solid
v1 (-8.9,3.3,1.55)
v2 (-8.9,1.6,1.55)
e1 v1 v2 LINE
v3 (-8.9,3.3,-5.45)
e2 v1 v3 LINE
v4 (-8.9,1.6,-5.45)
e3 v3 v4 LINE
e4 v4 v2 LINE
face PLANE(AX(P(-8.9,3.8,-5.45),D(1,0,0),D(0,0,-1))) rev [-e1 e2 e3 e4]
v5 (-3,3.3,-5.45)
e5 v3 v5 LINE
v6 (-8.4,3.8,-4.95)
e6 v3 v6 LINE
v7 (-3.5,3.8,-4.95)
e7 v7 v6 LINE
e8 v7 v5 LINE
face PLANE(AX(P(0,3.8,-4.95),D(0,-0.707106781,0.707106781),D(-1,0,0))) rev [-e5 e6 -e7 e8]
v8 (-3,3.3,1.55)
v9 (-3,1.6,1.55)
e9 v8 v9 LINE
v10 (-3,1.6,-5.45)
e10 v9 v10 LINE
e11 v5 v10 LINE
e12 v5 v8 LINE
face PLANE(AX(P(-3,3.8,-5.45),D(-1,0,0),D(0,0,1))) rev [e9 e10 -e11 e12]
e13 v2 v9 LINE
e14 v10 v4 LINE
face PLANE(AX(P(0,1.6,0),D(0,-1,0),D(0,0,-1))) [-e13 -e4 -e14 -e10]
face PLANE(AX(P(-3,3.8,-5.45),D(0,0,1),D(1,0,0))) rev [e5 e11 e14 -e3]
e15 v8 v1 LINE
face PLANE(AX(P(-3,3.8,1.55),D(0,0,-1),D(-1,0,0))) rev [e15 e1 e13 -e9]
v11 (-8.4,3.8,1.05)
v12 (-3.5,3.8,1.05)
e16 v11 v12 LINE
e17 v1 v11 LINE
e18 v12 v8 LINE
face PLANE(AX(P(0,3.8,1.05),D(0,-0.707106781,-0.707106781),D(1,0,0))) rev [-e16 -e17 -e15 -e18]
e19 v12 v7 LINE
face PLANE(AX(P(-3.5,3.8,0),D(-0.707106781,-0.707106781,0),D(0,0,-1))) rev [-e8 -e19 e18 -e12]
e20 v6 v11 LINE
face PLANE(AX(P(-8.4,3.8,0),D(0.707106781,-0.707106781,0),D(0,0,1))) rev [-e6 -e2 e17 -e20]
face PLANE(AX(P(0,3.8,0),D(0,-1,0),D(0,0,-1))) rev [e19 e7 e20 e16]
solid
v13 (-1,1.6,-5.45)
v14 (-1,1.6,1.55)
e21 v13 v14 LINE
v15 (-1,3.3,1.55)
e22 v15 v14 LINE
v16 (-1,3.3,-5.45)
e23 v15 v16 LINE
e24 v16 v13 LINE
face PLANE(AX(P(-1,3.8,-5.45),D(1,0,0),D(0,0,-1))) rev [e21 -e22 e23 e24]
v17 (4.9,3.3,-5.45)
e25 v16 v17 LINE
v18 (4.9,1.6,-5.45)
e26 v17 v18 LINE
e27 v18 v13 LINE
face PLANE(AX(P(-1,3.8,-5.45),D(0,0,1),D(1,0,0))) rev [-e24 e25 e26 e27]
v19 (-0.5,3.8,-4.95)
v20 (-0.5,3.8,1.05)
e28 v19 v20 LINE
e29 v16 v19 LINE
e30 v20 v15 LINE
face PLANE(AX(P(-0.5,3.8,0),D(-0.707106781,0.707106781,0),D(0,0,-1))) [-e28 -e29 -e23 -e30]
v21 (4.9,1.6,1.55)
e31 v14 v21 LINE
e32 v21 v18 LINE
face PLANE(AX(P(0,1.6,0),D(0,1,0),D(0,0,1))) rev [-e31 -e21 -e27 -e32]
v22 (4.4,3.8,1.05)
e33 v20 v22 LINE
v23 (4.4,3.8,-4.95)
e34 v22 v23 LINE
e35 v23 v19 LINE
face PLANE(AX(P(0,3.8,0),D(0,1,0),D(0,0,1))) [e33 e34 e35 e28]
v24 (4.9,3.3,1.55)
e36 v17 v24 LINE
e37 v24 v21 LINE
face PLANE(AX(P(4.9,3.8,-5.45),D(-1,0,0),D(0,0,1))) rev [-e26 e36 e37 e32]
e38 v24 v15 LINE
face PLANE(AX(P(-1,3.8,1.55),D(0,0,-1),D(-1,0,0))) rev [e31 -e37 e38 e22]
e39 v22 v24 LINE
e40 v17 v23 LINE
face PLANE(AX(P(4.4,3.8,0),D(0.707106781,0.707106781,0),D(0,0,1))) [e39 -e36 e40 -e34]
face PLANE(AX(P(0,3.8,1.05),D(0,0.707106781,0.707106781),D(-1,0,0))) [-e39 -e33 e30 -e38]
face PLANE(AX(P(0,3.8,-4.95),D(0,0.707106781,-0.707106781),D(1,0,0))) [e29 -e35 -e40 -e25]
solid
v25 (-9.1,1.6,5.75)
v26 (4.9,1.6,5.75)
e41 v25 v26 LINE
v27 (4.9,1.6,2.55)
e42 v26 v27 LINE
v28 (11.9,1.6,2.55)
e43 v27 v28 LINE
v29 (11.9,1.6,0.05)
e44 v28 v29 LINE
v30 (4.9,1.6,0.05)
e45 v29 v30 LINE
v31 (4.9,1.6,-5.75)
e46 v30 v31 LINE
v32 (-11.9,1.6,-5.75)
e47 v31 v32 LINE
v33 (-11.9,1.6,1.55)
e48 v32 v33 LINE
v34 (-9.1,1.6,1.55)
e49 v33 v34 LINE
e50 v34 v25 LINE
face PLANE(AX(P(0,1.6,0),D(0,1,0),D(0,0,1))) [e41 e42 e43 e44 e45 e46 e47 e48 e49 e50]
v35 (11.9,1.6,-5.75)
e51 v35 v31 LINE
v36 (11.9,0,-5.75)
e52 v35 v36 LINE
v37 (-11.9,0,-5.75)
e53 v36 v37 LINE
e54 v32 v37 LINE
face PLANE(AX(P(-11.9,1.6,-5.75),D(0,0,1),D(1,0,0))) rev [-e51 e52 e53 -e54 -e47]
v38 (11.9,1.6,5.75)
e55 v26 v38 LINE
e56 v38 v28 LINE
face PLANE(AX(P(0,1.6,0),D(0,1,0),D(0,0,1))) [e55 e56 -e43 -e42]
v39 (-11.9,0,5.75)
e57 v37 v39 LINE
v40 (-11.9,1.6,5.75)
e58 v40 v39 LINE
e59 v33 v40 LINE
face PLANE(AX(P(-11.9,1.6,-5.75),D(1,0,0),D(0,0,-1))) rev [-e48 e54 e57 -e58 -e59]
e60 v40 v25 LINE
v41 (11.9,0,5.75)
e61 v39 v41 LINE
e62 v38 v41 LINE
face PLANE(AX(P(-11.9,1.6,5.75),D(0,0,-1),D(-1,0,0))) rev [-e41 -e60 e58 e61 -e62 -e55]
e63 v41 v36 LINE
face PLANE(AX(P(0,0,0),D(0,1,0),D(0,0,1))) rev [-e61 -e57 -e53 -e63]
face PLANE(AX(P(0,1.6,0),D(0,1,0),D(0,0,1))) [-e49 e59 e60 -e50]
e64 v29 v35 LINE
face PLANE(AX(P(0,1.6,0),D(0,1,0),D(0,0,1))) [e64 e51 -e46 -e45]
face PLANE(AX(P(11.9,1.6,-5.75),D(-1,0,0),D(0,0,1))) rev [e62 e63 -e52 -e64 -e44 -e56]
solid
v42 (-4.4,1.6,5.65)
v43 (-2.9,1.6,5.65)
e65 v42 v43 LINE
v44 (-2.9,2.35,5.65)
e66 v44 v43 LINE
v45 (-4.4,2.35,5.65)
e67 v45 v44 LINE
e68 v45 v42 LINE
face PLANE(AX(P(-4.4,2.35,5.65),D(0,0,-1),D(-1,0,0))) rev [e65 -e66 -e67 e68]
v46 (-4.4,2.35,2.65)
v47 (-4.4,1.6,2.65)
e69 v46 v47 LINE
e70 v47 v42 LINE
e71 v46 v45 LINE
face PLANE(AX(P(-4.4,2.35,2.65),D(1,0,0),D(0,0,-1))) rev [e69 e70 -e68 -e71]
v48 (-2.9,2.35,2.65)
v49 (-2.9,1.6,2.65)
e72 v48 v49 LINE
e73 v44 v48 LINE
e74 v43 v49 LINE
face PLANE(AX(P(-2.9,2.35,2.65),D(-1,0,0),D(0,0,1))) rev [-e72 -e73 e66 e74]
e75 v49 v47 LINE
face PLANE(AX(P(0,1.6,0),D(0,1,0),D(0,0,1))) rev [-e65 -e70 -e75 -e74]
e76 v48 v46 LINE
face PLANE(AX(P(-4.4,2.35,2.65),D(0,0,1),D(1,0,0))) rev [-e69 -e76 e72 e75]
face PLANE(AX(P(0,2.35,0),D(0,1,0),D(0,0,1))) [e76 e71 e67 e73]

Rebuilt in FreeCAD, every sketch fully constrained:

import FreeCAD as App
import Part
import Sketcher

V = App.Vector


def edges_at(feature, points):
    """Names of the edges that pass closest to the given points."""
    edges = feature.Shape.Edges
    near = lambda p: min(range(len(edges)), key=lambda i: edges[i].distToShape(Part.Vertex(*p))[0])
    return sorted({f"Edge{near(p) + 1}" for p in points})


def add_polygon(sketch, points):
    """Adds a closed chain of lines whose ends are joined by coincident constraints."""
    first, n = sketch.GeometryCount, len(points)
    for a, b in zip(points, points[1:] + points[:1]):
        sketch.addGeometry(Part.LineSegment(App.Vector(*a, 0), App.Vector(*b, 0)), False)
    for i in range(n):
        sketch.addConstraint(Sketcher.Constraint("Coincident", first + i, 2, first + (i + 1) % n, 1))

doc = App.newDocument("Part")
body = doc.addObject("PartDesign::Body", "Body")

# Sketch on XZ plane
sketch1 = body.newObject("Sketcher::SketchObject", "Sketch")
sketch1.AttachmentSupport = (doc.getObject("XZ_Plane"), [""])
sketch1.MapMode = "FlatFace"
add_polygon(sketch1, [(-11.9, -5.75), (-11.9, 5.75), (11.9, 5.75), (11.9, -5.75)])  # lines 0-3
sketch1.addConstraint(Sketcher.Constraint("Vertical", 0))
sketch1.addConstraint(Sketcher.Constraint("Horizontal", 1))
sketch1.addConstraint(Sketcher.Constraint("Vertical", 2))
sketch1.addConstraint(Sketcher.Constraint("Horizontal", 3))
sketch1.addConstraint(Sketcher.Constraint("Symmetric", 0, 2, 2, 2, -1, 1))
sketch1.addConstraint(Sketcher.Constraint("DistanceX", 1, 1, 1, 2, 23.8))
sketch1.addConstraint(Sketcher.Constraint("DistanceY", 0, 1, 0, 2, 11.5))
pad1 = body.newObject("PartDesign::Pad", "Pad")
pad1.Profile = sketch1
pad1.Length = 1.6
pad1.Reversed = True
body2 = doc.addObject("PartDesign::Body", "Body001")

# Sketch on XZ plane
sketch2 = body2.newObject("Sketcher::SketchObject", "Sketch001")
sketch2.AttachmentSupport = (doc.getObject("XZ_Plane001"), [""])
sketch2.MapMode = "FlatFace"
sketch2.AttachmentOffset = App.Placement(V(0, 0, -1.6), App.Rotation())
add_polygon(sketch2, [(-1, -5.45), (-1, 1.55), (4.9, 1.55), (4.9, -5.45)])  # lines 0-3
sketch2.addConstraint(Sketcher.Constraint("Vertical", 0))
sketch2.addConstraint(Sketcher.Constraint("Horizontal", 1))
sketch2.addConstraint(Sketcher.Constraint("Vertical", 2))
sketch2.addConstraint(Sketcher.Constraint("Horizontal", 3))
sketch2.addConstraint(Sketcher.Constraint("DistanceY", 0, 1, 0, 2, 7.0))
sketch2.addConstraint(Sketcher.Constraint("DistanceX", 1, 1, 1, 2, 5.9))
sketch2.addConstraint(Sketcher.Constraint("DistanceX", 0, 2, -1, 1, 1.0))
sketch2.addConstraint(Sketcher.Constraint("DistanceY", -1, 1, 0, 2, 1.55))
pad2 = body2.newObject("PartDesign::Pad", "Pad001")
pad2.Profile = sketch2
pad2.Length = 2.2
pad2.Reversed = True
doc.recompute()

chamfer = body2.newObject("PartDesign::Chamfer", "Chamfer")
chamfer.Base = (pad2, edges_at(pad2, [
    (4.9, 3.8, -1.95),
    (1.95, 3.8, -5.45),
    (-1, 3.8, -1.95),
    (1.95, 3.8, 1.55),
]))
chamfer.Size = 0.5
body3 = doc.addObject("PartDesign::Body", "Body002")

# Sketch on XZ plane
sketch3 = body3.newObject("Sketcher::SketchObject", "Sketch002")
sketch3.AttachmentSupport = (doc.getObject("XZ_Plane002"), [""])
sketch3.MapMode = "FlatFace"
sketch3.AttachmentOffset = App.Placement(V(0, 0, -1.6), App.Rotation())
add_polygon(sketch3, [(-8.9, -5.45), (-8.9, 1.55), (-3, 1.55), (-3, -5.45)])  # lines 0-3
sketch3.addConstraint(Sketcher.Constraint("Vertical", 0))
sketch3.addConstraint(Sketcher.Constraint("Horizontal", 1))
sketch3.addConstraint(Sketcher.Constraint("Vertical", 2))
sketch3.addConstraint(Sketcher.Constraint("Horizontal", 3))
sketch3.addConstraint(Sketcher.Constraint("DistanceY", 0, 1, 0, 2, 7.0))
sketch3.addConstraint(Sketcher.Constraint("DistanceX", 1, 1, 1, 2, 5.9))
sketch3.addConstraint(Sketcher.Constraint("DistanceX", 1, 2, -1, 1, 3.0))
sketch3.addConstraint(Sketcher.Constraint("DistanceY", -1, 1, 0, 2, 1.55))
pad3 = body3.newObject("PartDesign::Pad", "Pad002")
pad3.Profile = sketch3
pad3.Length = 2.2
pad3.Reversed = True
doc.recompute()

chamfer2 = body3.newObject("PartDesign::Chamfer", "Chamfer001")
chamfer2.Base = (pad3, edges_at(pad3, [
    (-3, 3.8, -1.95),
    (-5.95, 3.8, -5.45),
    (-8.9, 3.8, -1.95),
    (-5.95, 3.8, 1.55),
]))
chamfer2.Size = 0.5
body4 = doc.addObject("PartDesign::Body", "Body003")

# Sketch on XZ plane
sketch4 = body4.newObject("Sketcher::SketchObject", "Sketch003")
sketch4.AttachmentSupport = (doc.getObject("XZ_Plane003"), [""])
sketch4.MapMode = "FlatFace"
sketch4.AttachmentOffset = App.Placement(V(0, 0, -1.6), App.Rotation())
add_polygon(sketch4, [(-4.4, 2.65), (-4.4, 5.65), (-2.9, 5.65), (-2.9, 2.65)])  # lines 0-3
sketch4.addConstraint(Sketcher.Constraint("Vertical", 0))
sketch4.addConstraint(Sketcher.Constraint("Horizontal", 1))
sketch4.addConstraint(Sketcher.Constraint("Vertical", 2))
sketch4.addConstraint(Sketcher.Constraint("Horizontal", 3))
sketch4.addConstraint(Sketcher.Constraint("DistanceY", 0, 1, 0, 2, 3.0))
sketch4.addConstraint(Sketcher.Constraint("DistanceX", 1, 1, 1, 2, 1.5))
sketch4.addConstraint(Sketcher.Constraint("DistanceX", 0, 2, -1, 1, 4.4))
sketch4.addConstraint(Sketcher.Constraint("DistanceY", -1, 1, 0, 2, 5.65))
pad4 = body4.newObject("PartDesign::Pad", "Pad003")
pad4.Profile = sketch4
pad4.Length = 0.75
pad4.Reversed = True

doc.recompute()
